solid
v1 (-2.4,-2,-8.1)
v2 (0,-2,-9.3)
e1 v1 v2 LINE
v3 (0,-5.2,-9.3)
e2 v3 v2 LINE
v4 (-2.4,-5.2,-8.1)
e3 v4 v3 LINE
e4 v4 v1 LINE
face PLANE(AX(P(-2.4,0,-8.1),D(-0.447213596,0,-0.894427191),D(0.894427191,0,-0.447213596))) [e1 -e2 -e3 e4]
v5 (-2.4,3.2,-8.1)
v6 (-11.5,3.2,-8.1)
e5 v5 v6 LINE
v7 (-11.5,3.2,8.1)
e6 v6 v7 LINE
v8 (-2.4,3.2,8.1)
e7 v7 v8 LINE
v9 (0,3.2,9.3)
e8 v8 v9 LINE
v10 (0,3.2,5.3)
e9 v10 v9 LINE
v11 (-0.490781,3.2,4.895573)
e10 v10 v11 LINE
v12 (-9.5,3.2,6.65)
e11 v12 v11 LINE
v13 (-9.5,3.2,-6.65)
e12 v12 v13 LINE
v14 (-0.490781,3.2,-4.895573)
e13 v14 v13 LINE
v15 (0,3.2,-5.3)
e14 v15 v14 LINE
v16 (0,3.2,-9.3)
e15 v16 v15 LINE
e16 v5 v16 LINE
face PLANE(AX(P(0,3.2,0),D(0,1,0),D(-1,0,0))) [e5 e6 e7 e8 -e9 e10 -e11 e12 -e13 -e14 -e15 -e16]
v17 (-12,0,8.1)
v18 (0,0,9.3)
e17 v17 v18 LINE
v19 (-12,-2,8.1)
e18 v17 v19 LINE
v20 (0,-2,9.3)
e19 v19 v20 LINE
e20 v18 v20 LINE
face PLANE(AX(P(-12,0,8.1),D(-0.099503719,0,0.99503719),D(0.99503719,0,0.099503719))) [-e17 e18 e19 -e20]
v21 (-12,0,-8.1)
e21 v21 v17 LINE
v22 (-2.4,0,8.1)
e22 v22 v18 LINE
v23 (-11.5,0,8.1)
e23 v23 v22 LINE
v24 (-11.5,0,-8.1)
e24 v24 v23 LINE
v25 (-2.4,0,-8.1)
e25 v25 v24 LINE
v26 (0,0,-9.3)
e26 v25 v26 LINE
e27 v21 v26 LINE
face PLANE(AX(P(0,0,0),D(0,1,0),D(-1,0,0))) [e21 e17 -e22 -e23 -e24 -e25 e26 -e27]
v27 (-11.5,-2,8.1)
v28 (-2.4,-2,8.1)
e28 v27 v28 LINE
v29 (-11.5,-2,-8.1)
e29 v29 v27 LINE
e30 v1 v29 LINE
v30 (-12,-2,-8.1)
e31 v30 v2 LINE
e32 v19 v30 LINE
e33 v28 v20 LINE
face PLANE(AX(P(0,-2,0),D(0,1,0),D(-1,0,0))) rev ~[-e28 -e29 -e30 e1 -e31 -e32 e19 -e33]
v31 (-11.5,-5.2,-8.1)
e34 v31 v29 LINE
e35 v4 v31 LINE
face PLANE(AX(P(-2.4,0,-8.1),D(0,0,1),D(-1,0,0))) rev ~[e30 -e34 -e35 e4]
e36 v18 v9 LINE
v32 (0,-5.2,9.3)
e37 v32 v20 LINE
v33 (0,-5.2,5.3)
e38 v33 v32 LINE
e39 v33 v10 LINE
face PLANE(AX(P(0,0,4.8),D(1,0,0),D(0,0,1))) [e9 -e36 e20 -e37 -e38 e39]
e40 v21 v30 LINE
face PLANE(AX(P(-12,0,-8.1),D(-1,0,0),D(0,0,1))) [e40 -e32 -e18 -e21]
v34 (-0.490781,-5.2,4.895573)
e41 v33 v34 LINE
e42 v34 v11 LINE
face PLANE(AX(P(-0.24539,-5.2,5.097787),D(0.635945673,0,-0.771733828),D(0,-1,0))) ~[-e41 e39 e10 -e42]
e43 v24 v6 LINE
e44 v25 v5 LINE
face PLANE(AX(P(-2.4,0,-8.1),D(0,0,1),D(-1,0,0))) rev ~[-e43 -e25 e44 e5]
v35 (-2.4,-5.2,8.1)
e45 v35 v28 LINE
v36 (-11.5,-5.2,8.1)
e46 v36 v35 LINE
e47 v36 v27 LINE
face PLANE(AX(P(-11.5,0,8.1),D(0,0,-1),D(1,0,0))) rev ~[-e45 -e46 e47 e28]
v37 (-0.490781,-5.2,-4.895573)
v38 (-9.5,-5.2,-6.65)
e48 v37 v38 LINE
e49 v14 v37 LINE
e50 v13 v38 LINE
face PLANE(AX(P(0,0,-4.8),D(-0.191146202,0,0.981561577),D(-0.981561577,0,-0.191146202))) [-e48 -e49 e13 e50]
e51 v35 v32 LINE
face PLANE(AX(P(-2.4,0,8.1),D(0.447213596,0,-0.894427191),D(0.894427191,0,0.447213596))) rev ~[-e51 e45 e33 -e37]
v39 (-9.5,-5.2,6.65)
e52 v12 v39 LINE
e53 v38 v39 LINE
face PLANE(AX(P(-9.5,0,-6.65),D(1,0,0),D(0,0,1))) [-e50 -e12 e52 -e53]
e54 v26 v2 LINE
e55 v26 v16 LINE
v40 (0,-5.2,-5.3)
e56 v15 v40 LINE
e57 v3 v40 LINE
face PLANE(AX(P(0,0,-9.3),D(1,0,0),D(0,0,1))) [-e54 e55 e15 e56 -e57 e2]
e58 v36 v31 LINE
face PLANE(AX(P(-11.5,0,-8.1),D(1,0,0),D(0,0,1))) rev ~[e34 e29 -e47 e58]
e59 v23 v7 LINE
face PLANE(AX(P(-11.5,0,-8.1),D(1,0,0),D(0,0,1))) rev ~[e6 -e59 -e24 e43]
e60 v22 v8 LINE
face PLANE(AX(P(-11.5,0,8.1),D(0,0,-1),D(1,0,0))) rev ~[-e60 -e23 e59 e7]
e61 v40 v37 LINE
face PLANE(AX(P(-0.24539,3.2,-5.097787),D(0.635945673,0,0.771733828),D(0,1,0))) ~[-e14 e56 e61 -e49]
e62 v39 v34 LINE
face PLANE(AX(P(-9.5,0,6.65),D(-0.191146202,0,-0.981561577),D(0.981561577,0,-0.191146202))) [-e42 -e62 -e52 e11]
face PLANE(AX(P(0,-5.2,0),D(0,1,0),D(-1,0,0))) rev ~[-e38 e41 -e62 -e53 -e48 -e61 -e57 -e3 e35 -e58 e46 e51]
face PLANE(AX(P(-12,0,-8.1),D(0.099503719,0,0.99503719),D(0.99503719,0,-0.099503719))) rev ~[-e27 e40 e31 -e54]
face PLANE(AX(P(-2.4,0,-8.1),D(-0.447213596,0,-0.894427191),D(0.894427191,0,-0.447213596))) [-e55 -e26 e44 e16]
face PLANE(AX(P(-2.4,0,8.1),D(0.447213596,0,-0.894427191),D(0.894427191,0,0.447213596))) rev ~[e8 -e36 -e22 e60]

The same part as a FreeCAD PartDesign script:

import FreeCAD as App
import Part
import Sketcher
from FreeCAD import Vector


def edges_at(feature, points):
    """Names of the edges that pass closest to the given points."""
    edges = feature.Shape.Edges
    near = lambda p: min(range(len(edges)), key=lambda i: edges[i].distToShape(Part.Vertex(*p))[0])
    return sorted({f"Edge{near(p) + 1}" for p in points})


def add_polygon(sketch, points):
    """Adds a closed chain of lines whose ends are joined by coincident constraints."""
    first, n = sketch.GeometryCount, len(points)
    for a, b in zip(points, points[1:] + points[:1]):
        sketch.addGeometry(Part.LineSegment(App.Vector(*a, 0), App.Vector(*b, 0)), False)
    for i in range(n):
        sketch.addConstraint(Sketcher.Constraint("Coincident", first + i, 2, first + (i + 1) % n, 1))

doc = App.newDocument("Part")
body = doc.addObject("PartDesign::Body", "Body")

sketch1 = body.newObject("Sketcher::SketchObject", "Sketch")
sketch1.AttachmentSupport = (doc.getObject("XZ_Plane"), [""])
sketch1.MapMode = "FlatFace"
add_polygon(sketch1, [(0, -4.8), (0, -9.3), (-2.4, -8.1), (-11.5, -8.1), (-11.5, 8.1), (-2.4, 8.1), (0, 9.3), (0, 4.8), (-9.5, 6.65), (-9.5, -6.65)])
sketch1.addConstraint(Sketcher.Constraint("Vertical", 0))
sketch1.addConstraint(Sketcher.Constraint("Horizontal", 2))
sketch1.addConstraint(Sketcher.Constraint("Vertical", 3))
sketch1.addConstraint(Sketcher.Constraint("Horizontal", 4))
sketch1.addConstraint(Sketcher.Constraint("Vertical", 6))
sketch1.addConstraint(Sketcher.Constraint("Vertical", 8))
sketch1.addConstraint(Sketcher.Constraint("Symmetric", 0, 2, 5, 2, -1, 1))
sketch1.addConstraint(Sketcher.Constraint("Symmetric", 1, 2, 4, 2, -1))
sketch1.addConstraint(Sketcher.Constraint("Symmetric", 6, 2, 9, 2, -1))
sketch1.addConstraint(Sketcher.Constraint("Equal", 7, 9))
sketch1.addConstraint(Sketcher.Constraint("DistanceY", 8, 2, 8, 1, 13.3))
sketch1.addConstraint(Sketcher.Constraint("DistanceX", 3, 2, 7, 2, 2.0))
sketch1.addConstraint(Sketcher.Constraint("DistanceX", 1, 2, -1, 1, 2.4))
sketch1.addConstraint(Sketcher.Constraint("DistanceX", 7, 2, -1, 1, 9.5))
sketch1.addConstraint(Sketcher.Constraint("DistanceY", 0, 2, 1, 2, 1.2))
sketch1.addConstraint(Sketcher.Constraint("DistanceY", 0, 2, 5, 2, 18.6))
sketch1.addConstraint(Sketcher.Constraint("DistanceY", 9, 2, 6, 2, 9.6))
pad1 = body.newObject("PartDesign::Pad", "Pad")
pad1.Profile = sketch1
pad1.Type = "TwoLengths"
pad1.Length = 3.2
pad1.Length2 = 5.2
pad1.Reversed = True

sketch2 = body.newObject("Sketcher::SketchObject", "Sketch001")
sketch2.AttachmentSupport = (doc.getObject("XZ_Plane"), [""])
sketch2.MapMode = "FlatFace"
add_polygon(sketch2, [(0, -4.8), (0, -9.3), (-12, -8.1), (-12, 8.1), (0, 9.3), (0, 4.8), (-9.5, 6.65), (-9.5, -6.65)])
sketch2.addConstraint(Sketcher.Constraint("Vertical", 0))
sketch2.addConstraint(Sketcher.Constraint("Vertical", 2))
sketch2.addConstraint(Sketcher.Constraint("Vertical", 4))
sketch2.addConstraint(Sketcher.Constraint("Vertical", 6))
sketch2.addConstraint(Sketcher.Constraint("Symmetric", 0, 2, 3, 2, -1, 1))
sketch2.addConstraint(Sketcher.Constraint("Symmetric", 4, 2, 7, 2, -1))
sketch2.addConstraint(Sketcher.Constraint("Equal", 1, 3))
sketch2.addConstraint(Sketcher.Constraint("Equal", 5, 7))
sketch2.addConstraint(Sketcher.Constraint("DistanceY", 6, 2, 6, 1, 13.3))
sketch2.addConstraint(Sketcher.Constraint("DistanceX", 1, 2, -1, 1, 12.0))
sketch2.addConstraint(Sketcher.Constraint("DistanceX", 5, 2, -1, 1, 9.5))
sketch2.addConstraint(Sketcher.Constraint("DistanceY", 0, 2, 1, 2, 1.2))
sketch2.addConstraint(Sketcher.Constraint("DistanceY", 0, 2, 3, 2, 18.6))
sketch2.addConstraint(Sketcher.Constraint("DistanceY", 7, 2, 4, 2, 9.6))
pad2 = body.newObject("PartDesign::Pad", "Pad001")
pad2.Profile = sketch2
pad2.Length = 2
doc.recompute()

chamfer = body.newObject("PartDesign::Chamfer", "Chamfer")
chamfer.Base = (pad2, edges_at(pad2, [(0, -1, 4.8), (0, -1, -4.8)]))
chamfer.Size = 0.5

doc.recompute()
